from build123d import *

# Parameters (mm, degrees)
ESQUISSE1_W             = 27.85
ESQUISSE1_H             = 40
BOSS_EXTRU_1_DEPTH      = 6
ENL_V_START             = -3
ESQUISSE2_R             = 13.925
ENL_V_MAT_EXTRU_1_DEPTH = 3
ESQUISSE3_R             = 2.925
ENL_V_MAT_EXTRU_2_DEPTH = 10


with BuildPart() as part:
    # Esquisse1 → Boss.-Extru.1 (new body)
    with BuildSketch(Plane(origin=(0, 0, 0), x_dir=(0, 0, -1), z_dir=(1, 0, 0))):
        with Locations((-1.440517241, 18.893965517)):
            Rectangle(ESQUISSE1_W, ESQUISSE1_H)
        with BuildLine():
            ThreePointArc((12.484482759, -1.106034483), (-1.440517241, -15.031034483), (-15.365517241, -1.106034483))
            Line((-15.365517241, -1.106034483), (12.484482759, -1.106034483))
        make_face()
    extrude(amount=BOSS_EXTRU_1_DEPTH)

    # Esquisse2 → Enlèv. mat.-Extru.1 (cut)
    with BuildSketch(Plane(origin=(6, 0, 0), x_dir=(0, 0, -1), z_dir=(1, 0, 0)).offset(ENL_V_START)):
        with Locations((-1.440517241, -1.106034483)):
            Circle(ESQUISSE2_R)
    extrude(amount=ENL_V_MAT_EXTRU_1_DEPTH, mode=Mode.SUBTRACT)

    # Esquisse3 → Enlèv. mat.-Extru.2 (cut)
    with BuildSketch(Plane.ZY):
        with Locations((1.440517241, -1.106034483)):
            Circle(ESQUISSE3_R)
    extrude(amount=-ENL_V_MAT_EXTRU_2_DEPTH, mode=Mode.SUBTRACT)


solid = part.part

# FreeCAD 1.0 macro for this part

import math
import FreeCAD as App
import Part
import Sketcher

V = App.Vector

doc = App.newDocument("Part")
body = doc.addObject("PartDesign::Body", "Body")

sketch1 = doc.addObject("Sketcher::SketchObject", "Sketch")
body.addObject(sketch1)
sketch1.AttachmentSupport = (doc.YZ_Plane, [""])
sketch1.MapMode = "FlatFace"
sketch1.addGeometry([
    Part.LineSegment(V(39, 15, 0), V(-1, 15, 0)),
    Part.ArcOfCircle(Part.Circle(V(-1, 1, 0), V(0, 0, 1), 14), math.radians(90), math.radians(270)),
    Part.LineSegment(V(-1, -12, 0), V(39, -12, 0)),
    Part.LineSegment(V(39, -12, 0), V(39, 15, 0)),
], False)
sketch1.addConstraint([
    Sketcher.Constraint("Tangent", 0, 2, 1, 1),
    Sketcher.Constraint("Tangent", 1, 2, 2, 1),
    Sketcher.Constraint("Coincident", 2, 2, 3, 1),
    Sketcher.Constraint("Coincident", 3, 2, 0, 1),
    Sketcher.Constraint("Horizontal", 0),
    Sketcher.Constraint("Horizontal", 2),
    Sketcher.Constraint("Vertical", 3),
    Sketcher.Constraint("DistanceX", 0, 2, 0, 1, 40.0),
    Sketcher.Constraint("Radius", 1, 13.925),
    Sketcher.Constraint("DistanceX", 1, 3, -1, 1, 1.106034),
    Sketcher.Constraint("DistanceY", -1, 1, 1, 3, 1.440517),
])
pad1 = doc.addObject("PartDesign::Pad", "Pad")
body.addObject(pad1)
pad1.Profile = sketch1
pad1.Length = 6

sketch2 = doc.addObject("Sketcher::SketchObject", "Sketch001")
body.addObject(sketch2)
sketch2.AttachmentSupport = (doc.YZ_Plane, [""])
sketch2.MapMode = "FlatFace"
sketch2.AttachmentOffset = App.Placement(V(0, 0, 3), App.Rotation())
sketch2.addGeometry(Part.Circle(V(-1, 1, 0), V(0, 0, 1), 14), False)
sketch2.addConstraint([
    Sketcher.Constraint("Diameter", 0, 27.85),
    Sketcher.Constraint("DistanceX", 0, 3, -1, 1, 1.106034),
    Sketcher.Constraint("DistanceY", -1, 1, 0, 3, 1.440517),
])
pocket1 = doc.addObject("PartDesign::Pocket", "Pocket")
body.addObject(pocket1)
pocket1.Profile = sketch2
pocket1.Length = 3
pocket1.Reversed = True

sketch3 = doc.addObject("Sketcher::SketchObject", "Sketch002")
body.addObject(sketch3)
sketch3.AttachmentSupport = (doc.YZ_Plane, [""])
sketch3.MapMode = "FlatFace"
sketch3.addGeometry(Part.Circle(V(-1.1, 1.4, 0), V(0, 0, 1), 2.9), False)
sketch3.addConstraint([
    Sketcher.Constraint("Diameter", 0, 5.85),
    Sketcher.Constraint("DistanceX", 0, 3, -1, 1, 1.106034),
    Sketcher.Constraint("DistanceY", -1, 1, 0, 3, 1.440517),
])
pocket2 = doc.addObject("PartDesign::Pocket", "Pocket001")
body.addObject(pocket2)
pocket2.Profile = sketch3
pocket2.Length = 10
pocket2.Reversed = True

doc.recompute()
